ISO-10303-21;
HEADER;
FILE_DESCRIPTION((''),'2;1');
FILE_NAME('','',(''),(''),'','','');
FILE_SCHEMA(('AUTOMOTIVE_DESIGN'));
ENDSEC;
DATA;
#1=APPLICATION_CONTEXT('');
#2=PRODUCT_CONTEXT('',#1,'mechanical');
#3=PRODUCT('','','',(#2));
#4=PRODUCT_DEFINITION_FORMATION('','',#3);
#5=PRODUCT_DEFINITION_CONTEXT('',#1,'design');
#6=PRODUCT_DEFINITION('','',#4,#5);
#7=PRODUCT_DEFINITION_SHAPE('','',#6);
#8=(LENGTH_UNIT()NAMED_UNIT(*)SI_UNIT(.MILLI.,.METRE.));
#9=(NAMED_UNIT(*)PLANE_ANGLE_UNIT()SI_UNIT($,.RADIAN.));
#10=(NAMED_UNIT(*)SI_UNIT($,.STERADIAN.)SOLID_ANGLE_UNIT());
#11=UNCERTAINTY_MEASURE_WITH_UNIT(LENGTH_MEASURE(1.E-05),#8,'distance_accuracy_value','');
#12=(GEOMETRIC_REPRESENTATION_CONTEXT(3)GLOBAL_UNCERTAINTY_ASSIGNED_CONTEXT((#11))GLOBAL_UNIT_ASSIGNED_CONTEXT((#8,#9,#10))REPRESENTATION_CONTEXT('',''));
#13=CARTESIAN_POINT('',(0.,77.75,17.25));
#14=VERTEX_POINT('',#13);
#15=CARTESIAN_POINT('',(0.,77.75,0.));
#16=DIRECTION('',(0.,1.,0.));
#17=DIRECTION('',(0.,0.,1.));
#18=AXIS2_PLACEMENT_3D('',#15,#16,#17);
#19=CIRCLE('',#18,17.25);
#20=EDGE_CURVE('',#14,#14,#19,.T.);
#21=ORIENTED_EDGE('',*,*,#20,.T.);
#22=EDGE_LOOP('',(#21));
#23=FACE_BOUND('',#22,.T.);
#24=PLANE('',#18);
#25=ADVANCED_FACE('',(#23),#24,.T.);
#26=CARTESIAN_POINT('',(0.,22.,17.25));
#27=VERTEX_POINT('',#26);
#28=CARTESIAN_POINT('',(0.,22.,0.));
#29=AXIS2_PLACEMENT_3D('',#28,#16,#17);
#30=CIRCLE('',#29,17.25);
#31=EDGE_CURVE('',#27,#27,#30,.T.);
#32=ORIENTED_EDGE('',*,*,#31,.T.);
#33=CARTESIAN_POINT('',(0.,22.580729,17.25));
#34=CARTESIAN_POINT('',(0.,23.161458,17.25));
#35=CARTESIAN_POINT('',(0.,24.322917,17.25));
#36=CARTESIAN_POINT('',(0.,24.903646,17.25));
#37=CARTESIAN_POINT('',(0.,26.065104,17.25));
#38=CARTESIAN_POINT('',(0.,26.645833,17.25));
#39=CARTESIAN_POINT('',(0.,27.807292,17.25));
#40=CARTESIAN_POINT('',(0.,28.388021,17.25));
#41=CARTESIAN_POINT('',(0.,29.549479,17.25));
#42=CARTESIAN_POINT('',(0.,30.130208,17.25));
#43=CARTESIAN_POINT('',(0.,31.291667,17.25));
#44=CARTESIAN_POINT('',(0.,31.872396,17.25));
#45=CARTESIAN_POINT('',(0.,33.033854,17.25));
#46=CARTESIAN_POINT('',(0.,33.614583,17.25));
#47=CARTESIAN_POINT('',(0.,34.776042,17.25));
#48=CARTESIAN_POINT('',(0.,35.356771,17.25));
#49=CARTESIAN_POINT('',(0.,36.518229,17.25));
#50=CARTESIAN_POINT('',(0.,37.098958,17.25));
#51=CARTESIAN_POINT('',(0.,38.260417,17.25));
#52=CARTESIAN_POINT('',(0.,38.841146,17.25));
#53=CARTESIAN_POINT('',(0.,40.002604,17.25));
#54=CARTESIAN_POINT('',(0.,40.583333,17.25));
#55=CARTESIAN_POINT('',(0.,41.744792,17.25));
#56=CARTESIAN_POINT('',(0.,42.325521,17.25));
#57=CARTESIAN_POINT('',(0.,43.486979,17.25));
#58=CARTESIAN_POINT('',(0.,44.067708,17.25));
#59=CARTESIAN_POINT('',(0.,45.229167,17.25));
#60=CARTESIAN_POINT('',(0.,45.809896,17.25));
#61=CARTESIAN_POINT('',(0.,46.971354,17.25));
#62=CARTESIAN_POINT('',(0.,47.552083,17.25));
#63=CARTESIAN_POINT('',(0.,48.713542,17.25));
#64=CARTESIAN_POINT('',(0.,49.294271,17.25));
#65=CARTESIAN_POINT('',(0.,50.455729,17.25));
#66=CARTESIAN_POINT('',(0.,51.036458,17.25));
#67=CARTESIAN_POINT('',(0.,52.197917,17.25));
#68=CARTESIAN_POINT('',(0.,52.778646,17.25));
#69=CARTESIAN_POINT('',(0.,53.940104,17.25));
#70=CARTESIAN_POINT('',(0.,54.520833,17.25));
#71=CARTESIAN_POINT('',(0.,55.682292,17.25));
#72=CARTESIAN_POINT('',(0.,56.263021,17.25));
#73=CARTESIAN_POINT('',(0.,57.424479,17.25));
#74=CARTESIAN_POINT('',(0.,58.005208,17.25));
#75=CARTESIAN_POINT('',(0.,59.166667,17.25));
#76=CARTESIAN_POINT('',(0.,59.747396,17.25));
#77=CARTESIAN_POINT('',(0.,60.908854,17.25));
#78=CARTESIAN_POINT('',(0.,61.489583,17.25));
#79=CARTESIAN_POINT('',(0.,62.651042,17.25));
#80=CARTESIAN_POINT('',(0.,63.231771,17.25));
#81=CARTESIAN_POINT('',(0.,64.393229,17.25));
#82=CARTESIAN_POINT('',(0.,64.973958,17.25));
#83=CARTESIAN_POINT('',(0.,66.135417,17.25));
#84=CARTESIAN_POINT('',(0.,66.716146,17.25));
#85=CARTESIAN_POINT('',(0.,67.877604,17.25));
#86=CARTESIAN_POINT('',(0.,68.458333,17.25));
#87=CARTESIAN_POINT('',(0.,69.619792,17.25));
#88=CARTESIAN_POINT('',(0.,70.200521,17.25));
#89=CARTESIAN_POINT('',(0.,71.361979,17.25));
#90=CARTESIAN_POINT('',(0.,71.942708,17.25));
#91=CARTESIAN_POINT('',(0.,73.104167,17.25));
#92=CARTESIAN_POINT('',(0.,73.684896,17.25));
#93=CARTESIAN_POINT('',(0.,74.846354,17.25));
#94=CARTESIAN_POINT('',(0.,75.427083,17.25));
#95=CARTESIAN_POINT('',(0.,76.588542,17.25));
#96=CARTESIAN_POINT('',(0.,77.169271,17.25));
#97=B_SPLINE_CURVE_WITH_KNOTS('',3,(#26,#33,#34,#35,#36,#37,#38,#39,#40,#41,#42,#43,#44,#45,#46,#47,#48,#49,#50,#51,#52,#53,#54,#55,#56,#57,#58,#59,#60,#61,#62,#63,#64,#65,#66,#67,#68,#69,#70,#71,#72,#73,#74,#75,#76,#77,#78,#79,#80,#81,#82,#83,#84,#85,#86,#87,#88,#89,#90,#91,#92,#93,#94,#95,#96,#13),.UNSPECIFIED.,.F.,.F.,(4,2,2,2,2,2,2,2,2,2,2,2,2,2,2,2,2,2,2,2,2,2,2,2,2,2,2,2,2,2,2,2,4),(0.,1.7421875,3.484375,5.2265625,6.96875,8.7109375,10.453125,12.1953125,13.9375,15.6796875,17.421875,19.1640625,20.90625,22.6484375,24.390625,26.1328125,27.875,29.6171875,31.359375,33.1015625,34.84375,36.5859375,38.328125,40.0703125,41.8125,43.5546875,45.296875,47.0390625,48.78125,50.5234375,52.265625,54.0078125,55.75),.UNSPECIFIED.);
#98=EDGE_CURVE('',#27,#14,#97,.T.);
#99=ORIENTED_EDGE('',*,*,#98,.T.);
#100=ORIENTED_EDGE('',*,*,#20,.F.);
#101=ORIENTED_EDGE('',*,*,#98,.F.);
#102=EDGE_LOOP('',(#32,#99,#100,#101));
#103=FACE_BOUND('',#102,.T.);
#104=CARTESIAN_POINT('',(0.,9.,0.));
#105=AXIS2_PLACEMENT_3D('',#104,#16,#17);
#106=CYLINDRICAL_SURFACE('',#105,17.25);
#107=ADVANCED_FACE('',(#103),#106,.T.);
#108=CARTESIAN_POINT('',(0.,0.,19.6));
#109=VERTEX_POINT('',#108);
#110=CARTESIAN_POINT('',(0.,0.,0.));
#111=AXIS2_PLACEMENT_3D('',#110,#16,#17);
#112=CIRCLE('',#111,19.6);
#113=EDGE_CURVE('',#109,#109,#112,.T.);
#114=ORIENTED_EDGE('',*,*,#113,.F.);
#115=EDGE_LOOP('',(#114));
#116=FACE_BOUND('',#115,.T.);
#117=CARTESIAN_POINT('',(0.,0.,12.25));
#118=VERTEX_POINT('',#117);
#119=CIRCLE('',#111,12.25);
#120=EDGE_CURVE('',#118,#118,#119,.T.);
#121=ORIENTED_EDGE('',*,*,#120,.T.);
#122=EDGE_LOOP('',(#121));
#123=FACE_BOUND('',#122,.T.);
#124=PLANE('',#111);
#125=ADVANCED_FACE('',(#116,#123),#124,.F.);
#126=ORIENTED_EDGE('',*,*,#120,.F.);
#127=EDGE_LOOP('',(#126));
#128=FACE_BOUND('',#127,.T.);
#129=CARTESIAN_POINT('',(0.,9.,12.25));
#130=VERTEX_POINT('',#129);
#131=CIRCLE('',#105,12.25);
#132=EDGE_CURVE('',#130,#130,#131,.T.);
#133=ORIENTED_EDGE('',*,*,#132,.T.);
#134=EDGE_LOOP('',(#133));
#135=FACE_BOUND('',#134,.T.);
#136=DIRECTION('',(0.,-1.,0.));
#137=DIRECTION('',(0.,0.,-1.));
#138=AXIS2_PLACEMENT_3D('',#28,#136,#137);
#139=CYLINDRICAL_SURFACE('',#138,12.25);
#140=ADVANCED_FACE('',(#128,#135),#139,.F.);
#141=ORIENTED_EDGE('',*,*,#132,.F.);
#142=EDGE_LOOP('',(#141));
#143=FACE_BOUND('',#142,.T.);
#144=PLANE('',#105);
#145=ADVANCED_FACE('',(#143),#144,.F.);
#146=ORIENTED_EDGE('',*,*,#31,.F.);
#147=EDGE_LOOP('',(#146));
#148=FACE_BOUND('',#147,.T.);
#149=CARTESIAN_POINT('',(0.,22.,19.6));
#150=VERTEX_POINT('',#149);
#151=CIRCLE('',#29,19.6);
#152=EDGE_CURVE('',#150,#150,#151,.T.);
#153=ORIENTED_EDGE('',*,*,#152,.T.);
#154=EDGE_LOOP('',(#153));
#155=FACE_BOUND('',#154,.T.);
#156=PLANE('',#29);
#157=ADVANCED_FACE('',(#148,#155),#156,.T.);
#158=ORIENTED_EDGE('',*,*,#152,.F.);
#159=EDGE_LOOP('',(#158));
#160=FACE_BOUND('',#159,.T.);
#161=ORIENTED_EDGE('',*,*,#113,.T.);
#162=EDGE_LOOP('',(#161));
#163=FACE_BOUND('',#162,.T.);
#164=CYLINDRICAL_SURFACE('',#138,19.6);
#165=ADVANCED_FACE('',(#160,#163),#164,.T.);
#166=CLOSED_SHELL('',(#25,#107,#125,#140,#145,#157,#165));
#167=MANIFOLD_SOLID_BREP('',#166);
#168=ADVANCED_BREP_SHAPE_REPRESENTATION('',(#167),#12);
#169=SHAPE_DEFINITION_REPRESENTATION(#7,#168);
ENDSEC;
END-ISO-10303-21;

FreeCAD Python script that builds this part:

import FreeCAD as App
import Part
import Sketcher
from FreeCAD import Vector

doc = App.newDocument("Part")
body = doc.addObject("PartDesign::Body", "Body")

sketch1 = body.newObject("Sketcher::SketchObject", "Sketch")
sketch1.AttachmentSupport = (doc.getObject("XZ_Plane"), [""])
sketch1.MapMode = "FlatFace"
sketch1.addGeometry(Part.Circle(Vector(0, 0, 0), Vector(0, 0, 1), 20), False)
sketch1.addGeometry(Part.Circle(Vector(0, 0, 0), Vector(0, 0, 1), 12), False)
sketch1.addConstraint(Sketcher.Constraint("Coincident", 0, 3, -1, 1))
sketch1.addConstraint(Sketcher.Constraint("Coincident", 1, 3, -1, 1))
sketch1.addConstraint(Sketcher.Constraint("Diameter", 0, 39.2))
sketch1.addConstraint(Sketcher.Constraint("Diameter", 1, 24.5))
pad1 = body.newObject("PartDesign::Pad", "Pad")
pad1.Profile = sketch1
pad1.Length = 22
pad1.Reversed = True

sketch2 = body.newObject("Sketcher::SketchObject", "Sketch001")
sketch2.AttachmentSupport = (doc.getObject("XZ_Plane"), [""])
sketch2.MapMode = "FlatFace"
sketch2.AttachmentOffset = App.Placement(Vector(0, 0, -22), App.Rotation())
sketch2.addGeometry(Part.Circle(Vector(0, 0, 0), Vector(0, 0, 1), 17), False)
sketch2.addConstraint(Sketcher.Constraint("Coincident", 0, 3, -1, 1))
sketch2.addConstraint(Sketcher.Constraint("Diameter", 0, 34.5))
pad2 = body.newObject("PartDesign::Pad", "Pad001")
pad2.Profile = sketch2
pad2.Type = "TwoLengths"
pad2.Length = 55.75
pad2.Length2 = 13
pad2.Reversed = True

doc.recompute()
